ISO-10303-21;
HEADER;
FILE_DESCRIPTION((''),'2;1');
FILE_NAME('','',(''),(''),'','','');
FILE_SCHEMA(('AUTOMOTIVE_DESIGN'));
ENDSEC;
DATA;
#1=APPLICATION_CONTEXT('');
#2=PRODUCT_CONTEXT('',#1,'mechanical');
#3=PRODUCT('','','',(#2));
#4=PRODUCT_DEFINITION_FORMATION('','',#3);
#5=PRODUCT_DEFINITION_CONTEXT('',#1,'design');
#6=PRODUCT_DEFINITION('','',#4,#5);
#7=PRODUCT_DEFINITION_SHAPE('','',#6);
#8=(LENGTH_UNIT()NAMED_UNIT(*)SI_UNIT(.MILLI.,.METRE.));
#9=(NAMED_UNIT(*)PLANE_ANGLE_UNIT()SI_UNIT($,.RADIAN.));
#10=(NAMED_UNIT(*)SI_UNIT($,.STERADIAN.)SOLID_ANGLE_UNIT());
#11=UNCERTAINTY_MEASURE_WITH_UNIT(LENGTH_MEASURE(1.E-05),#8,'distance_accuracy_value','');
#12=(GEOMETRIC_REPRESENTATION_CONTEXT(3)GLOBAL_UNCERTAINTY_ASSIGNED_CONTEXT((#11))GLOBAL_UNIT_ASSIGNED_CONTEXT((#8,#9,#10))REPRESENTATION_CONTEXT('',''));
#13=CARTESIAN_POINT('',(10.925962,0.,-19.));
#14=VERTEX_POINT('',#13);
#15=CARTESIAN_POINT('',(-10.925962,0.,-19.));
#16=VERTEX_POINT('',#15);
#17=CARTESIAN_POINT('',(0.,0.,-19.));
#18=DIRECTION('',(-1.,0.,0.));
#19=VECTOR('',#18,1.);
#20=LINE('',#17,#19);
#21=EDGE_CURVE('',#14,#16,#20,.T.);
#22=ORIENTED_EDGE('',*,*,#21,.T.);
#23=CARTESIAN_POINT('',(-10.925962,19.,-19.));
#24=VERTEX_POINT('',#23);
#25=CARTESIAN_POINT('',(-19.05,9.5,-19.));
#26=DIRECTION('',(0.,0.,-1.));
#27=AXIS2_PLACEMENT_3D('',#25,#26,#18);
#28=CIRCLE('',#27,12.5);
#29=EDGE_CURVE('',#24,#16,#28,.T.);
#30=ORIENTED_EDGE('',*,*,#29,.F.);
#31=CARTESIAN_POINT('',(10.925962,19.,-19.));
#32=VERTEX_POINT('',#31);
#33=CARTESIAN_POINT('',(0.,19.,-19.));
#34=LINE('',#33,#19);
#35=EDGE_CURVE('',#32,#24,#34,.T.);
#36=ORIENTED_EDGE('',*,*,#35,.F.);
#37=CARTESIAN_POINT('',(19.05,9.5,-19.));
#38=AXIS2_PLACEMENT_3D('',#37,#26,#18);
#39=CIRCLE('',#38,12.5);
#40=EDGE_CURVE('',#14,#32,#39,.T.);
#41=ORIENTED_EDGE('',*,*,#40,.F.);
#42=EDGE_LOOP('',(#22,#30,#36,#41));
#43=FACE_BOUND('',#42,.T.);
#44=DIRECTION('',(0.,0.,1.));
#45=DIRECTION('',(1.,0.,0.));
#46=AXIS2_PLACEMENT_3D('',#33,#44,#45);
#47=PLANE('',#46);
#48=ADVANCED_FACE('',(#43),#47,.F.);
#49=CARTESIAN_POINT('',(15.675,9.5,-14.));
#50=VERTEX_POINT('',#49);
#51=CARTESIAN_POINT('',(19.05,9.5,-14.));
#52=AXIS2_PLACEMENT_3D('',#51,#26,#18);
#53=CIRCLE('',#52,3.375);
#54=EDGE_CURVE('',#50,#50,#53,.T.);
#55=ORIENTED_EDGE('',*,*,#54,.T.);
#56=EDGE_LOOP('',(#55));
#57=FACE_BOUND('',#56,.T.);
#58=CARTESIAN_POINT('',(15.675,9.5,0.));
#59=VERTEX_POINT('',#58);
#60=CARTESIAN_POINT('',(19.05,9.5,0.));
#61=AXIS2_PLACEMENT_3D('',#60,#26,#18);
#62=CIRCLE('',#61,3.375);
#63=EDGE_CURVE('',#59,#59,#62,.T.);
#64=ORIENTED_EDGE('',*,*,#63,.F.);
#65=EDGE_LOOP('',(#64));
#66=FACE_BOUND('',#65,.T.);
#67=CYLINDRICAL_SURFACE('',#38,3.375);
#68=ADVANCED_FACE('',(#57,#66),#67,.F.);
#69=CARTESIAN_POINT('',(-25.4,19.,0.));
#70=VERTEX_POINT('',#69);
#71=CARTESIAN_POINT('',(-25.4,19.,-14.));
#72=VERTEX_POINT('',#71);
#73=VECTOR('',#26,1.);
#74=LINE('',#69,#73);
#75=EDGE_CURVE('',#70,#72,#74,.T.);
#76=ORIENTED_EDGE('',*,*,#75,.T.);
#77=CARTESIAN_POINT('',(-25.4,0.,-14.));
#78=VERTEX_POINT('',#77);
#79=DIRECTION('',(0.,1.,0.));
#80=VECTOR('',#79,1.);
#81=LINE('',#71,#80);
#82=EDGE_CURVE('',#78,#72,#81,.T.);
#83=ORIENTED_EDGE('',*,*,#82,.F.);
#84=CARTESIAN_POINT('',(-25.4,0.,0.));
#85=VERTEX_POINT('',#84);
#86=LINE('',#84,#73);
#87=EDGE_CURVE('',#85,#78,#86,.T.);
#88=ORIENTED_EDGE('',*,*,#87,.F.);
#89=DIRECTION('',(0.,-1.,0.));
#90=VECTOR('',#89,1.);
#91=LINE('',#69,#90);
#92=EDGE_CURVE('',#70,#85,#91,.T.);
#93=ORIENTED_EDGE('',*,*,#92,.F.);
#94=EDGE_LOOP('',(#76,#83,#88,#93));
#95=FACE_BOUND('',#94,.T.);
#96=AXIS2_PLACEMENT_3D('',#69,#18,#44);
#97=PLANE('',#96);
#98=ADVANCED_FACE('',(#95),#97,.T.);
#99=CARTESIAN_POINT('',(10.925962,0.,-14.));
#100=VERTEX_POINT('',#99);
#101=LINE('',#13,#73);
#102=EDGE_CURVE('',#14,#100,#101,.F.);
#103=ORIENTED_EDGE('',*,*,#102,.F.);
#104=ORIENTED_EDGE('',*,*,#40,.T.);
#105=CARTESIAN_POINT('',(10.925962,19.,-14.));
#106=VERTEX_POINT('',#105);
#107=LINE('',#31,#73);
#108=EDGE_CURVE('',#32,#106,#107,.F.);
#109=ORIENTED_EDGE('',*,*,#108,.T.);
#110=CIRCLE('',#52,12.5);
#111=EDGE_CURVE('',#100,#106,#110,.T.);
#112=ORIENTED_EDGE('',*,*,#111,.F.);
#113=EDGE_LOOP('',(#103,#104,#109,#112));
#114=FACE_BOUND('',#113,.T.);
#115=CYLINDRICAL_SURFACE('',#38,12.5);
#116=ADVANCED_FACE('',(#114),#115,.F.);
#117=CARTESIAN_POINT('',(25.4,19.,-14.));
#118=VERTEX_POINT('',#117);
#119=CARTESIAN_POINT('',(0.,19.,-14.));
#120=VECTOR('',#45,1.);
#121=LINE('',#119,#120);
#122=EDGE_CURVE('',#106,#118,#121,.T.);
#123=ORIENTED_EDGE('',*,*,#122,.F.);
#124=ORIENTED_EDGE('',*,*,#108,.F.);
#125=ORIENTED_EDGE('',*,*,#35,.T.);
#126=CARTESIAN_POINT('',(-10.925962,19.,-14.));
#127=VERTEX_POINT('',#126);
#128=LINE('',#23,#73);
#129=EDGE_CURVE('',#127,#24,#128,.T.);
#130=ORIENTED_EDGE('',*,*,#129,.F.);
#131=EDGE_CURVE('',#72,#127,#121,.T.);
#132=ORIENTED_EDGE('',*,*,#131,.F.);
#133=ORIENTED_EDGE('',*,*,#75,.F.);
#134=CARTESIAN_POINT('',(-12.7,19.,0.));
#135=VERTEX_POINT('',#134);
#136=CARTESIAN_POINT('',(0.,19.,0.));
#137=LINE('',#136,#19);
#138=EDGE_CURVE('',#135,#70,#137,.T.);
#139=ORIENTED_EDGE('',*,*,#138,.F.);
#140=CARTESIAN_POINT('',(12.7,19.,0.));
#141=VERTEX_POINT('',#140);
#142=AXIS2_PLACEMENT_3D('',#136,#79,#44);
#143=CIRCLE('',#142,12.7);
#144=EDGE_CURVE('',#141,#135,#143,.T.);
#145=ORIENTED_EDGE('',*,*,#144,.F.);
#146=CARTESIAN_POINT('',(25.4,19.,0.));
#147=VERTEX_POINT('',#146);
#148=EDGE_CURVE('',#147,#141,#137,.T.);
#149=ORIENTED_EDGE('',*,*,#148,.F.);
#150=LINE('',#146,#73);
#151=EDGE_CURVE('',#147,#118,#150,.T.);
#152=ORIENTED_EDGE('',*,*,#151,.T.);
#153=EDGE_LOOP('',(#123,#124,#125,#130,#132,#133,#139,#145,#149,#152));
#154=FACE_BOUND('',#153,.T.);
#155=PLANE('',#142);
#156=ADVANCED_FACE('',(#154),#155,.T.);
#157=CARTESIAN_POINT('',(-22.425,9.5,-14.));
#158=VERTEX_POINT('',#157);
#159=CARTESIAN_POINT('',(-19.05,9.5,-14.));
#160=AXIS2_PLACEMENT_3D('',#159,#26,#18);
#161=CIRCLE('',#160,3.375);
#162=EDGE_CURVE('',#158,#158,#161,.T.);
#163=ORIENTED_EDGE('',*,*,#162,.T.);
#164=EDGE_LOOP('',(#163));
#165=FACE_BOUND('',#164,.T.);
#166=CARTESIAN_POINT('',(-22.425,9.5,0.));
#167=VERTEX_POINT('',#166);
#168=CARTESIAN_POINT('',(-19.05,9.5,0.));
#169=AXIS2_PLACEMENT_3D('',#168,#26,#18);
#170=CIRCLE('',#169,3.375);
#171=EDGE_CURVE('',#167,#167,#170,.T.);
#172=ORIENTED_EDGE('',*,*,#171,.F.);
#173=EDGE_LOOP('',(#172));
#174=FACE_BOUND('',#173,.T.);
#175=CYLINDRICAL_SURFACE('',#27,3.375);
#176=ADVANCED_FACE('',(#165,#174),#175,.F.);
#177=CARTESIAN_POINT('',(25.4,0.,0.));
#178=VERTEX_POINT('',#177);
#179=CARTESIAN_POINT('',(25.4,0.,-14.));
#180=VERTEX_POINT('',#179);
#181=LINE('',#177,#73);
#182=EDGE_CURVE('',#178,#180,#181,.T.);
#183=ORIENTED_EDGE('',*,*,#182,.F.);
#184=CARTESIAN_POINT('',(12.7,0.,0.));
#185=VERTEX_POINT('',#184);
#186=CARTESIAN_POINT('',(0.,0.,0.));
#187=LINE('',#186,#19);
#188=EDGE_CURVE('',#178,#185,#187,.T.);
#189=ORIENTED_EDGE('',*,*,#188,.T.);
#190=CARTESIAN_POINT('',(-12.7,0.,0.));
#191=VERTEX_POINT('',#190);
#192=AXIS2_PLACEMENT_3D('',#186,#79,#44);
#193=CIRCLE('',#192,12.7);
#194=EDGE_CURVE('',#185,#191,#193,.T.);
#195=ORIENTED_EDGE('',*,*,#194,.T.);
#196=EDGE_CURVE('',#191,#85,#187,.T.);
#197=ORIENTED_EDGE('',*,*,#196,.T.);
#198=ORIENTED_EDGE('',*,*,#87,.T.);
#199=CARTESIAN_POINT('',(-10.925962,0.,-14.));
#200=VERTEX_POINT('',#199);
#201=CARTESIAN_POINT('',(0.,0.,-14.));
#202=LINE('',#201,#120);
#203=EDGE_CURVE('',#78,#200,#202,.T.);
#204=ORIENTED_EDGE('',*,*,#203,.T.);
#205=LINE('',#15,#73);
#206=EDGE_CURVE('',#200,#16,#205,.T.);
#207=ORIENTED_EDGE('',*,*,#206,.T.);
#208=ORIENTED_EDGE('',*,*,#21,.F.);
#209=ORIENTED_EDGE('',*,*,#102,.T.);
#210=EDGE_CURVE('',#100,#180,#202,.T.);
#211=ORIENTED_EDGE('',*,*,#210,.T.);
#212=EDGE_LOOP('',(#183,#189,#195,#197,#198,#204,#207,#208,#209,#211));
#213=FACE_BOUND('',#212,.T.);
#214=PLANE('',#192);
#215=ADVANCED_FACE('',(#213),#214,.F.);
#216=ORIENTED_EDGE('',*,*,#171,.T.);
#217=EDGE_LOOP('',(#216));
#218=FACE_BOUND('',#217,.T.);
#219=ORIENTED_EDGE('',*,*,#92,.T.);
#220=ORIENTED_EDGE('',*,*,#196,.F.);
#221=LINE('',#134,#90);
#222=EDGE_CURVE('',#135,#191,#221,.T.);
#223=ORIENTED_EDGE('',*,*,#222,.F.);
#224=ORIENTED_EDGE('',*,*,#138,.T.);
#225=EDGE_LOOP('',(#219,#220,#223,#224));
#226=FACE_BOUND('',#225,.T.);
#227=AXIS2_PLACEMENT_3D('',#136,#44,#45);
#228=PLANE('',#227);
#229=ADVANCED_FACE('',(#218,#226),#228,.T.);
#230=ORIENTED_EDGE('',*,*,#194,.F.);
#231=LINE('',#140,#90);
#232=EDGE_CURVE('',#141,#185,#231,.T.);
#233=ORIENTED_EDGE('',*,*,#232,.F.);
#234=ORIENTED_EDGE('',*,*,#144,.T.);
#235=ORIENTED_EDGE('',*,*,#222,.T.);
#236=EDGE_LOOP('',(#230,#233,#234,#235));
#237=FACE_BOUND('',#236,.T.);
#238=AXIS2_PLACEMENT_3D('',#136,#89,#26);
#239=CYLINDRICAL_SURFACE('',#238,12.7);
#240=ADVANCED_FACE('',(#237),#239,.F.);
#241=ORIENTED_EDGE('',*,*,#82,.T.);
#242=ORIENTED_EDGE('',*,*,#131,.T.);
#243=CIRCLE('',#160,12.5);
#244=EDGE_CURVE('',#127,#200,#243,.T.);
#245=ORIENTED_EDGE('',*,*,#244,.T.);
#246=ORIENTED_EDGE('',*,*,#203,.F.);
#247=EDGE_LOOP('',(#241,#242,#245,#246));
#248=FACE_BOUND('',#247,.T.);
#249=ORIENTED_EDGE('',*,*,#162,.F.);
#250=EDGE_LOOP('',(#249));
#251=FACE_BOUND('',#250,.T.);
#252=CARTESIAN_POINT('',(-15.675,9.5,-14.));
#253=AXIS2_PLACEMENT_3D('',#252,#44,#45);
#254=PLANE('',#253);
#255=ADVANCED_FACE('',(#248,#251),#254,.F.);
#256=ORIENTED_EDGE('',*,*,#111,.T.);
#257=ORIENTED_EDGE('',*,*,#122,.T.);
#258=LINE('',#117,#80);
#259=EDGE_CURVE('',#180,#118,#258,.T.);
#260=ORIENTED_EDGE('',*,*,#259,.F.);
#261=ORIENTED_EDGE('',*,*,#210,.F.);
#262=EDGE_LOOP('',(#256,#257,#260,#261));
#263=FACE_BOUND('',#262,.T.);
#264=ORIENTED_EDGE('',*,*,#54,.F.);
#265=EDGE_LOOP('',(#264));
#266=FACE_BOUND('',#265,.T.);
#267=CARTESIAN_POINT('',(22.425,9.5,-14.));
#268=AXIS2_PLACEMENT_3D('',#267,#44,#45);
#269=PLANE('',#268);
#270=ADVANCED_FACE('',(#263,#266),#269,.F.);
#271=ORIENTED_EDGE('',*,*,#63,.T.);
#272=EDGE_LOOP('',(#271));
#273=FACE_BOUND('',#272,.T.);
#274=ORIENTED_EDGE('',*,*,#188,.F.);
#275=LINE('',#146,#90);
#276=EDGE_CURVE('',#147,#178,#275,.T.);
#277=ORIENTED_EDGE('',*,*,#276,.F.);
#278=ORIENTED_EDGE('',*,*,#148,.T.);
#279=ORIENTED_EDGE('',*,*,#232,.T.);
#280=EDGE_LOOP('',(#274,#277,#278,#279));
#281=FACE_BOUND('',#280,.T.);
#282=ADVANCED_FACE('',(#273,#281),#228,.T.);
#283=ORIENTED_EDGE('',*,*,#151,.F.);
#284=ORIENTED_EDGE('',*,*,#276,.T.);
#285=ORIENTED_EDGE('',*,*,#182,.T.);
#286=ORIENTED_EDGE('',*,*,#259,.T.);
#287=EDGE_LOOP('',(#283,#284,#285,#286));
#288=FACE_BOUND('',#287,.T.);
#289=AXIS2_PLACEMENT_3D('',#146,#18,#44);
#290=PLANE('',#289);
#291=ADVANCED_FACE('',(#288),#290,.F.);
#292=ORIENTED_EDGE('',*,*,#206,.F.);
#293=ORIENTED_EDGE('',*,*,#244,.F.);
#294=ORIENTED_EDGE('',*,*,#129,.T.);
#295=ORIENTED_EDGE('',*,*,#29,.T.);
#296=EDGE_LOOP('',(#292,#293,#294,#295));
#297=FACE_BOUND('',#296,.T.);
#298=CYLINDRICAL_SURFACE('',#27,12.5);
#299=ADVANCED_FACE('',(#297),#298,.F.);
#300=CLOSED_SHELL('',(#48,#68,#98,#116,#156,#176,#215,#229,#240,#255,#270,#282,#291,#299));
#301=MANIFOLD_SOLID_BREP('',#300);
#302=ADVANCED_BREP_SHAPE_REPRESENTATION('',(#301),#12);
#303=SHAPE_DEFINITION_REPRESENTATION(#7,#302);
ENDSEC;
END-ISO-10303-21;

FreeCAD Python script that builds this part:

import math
import FreeCAD as App
import Part
import Sketcher

V = App.Vector
Q = App.Units.Quantity

doc = App.newDocument("Part")
body = doc.addObject("PartDesign::Body", "Body")

# Sketch on XZ plane
sketch1 = body.newObject("Sketcher::SketchObject", "Sketch")
sketch1.AttachmentSupport = (doc.getObject("XZ_Plane"), [""])
sketch1.MapMode = "FlatFace"
sketch1.addGeometry([
    Part.LineSegment(V(13, 0, 0), V(25, 0, 0)),  # 0
    Part.LineSegment(V(25, 0, 0), V(25, -19, 0)),  # 1
    Part.LineSegment(V(25, -19, 0), V(-25, -19, 0)),  # 2
    Part.LineSegment(V(-25, -19, 0), V(-25, 0, 0)),  # 3
    Part.LineSegment(V(-25, 0, 0), V(-13, 0, 0)),  # 4
    Part.ArcOfCircle(Part.Circle(V(0, 0, 0), V(0, 0, 1), 13), math.radians(180), math.radians(360)),  # 5
], False)
sketch1.addConstraint([
    Sketcher.Constraint("Coincident", 0, 2, 1, 1),
    Sketcher.Constraint("Coincident", 1, 2, 2, 1),
    Sketcher.Constraint("Coincident", 2, 2, 3, 1),
    Sketcher.Constraint("Coincident", 3, 2, 4, 1),
    Sketcher.Constraint("Coincident", 4, 2, 5, 1),
    Sketcher.Constraint("Coincident", 5, 2, 0, 1),
    Sketcher.Constraint("Horizontal", 0),
    Sketcher.Constraint("Vertical", 1),
    Sketcher.Constraint("Horizontal", 2),
    Sketcher.Constraint("Vertical", 3),
    Sketcher.Constraint("Horizontal", 4),
    Sketcher.Constraint("Coincident", 5, 3, -1, 1),
    Sketcher.Constraint("Symmetric", 0, 2, 3, 2, -1, 1),
    Sketcher.Constraint("PointOnObject", 0, 2, -1),
    Sketcher.Constraint("Radius", 5, Q("0.5 in")),
    Sketcher.Constraint("DistanceX", 2, 2, 2, 1, Q("2 in")),
    Sketcher.Constraint("DistanceY", 1, 2, 1, 1, Q("19 mm")),
])
pad1 = body.newObject("PartDesign::Pad", "Pad")
pad1.Profile = sketch1
pad1.Length = 19
pad1.Reversed = True

# Sketch on XY plane
sketch2 = body.newObject("Sketcher::SketchObject", "Sketch001")
sketch2.AttachmentSupport = (doc.getObject("XY_Plane"), [""])
sketch2.MapMode = "FlatFace"
sketch2.AttachmentOffset = App.Placement(V(0, 0, -19), App.Rotation())
sketch2.addGeometry([
    Part.Circle(V(19.1, 9.5, 0), V(0, 0, 1), 3.4),
    Part.Circle(V(-19.1, 9.5, 0), V(0, 0, 1), 3.4),
], False)
sketch2.addConstraint([
    Sketcher.Constraint("Equal", 0, 1),
    Sketcher.Constraint("Symmetric", 0, 3, 1, 3, -2),
    Sketcher.Constraint("DistanceX", 1, 3, 0, 3, Q("1.5 in")),
    Sketcher.Constraint("Diameter", 0, Q("6.75 mm")),
    Sketcher.Constraint("DistanceY", -1, 1, 0, 3, Q("9.5 mm")),
])
doc.recompute()
hole = body.newObject("PartDesign::Hole", "Hole")
hole.Profile = sketch2
hole.ThreadType = "None"
hole.Diameter = 6.75
hole.DepthType = "ThroughAll"
hole.HoleCutType = "Counterbore"
hole.HoleCutDiameter = 25
hole.HoleCutDepth = 5
hole.Reversed = True

doc.recompute()
